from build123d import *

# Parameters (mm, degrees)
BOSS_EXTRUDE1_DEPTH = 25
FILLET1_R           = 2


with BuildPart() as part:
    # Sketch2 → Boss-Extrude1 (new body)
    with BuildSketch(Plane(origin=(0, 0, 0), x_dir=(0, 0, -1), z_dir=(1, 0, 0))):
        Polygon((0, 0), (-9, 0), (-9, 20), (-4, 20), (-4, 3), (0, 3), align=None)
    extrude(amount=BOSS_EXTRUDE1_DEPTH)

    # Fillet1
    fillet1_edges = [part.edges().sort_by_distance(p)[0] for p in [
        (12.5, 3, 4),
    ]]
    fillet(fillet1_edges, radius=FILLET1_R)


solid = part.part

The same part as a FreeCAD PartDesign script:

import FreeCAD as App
import Part
import Sketcher


def edges_at(feature, points):
    """Names of the edges that pass closest to the given points."""
    edges = feature.Shape.Edges
    near = lambda p: min(range(len(edges)), key=lambda i: edges[i].distToShape(Part.Vertex(*p))[0])
    return sorted({f"Edge{near(p) + 1}" for p in points})

doc = App.newDocument("Part")
body = doc.addObject("PartDesign::Body", "Body")

# Sketch on YZ plane
sketch1 = doc.addObject("Sketcher::SketchObject", "Sketch")
body.addObject(sketch1)
sketch1.AttachmentSupport = (doc.YZ_Plane, [""])
sketch1.MapMode = "FlatFace"
sketch1.addGeometry([
    Part.LineSegment(App.Vector(0, 9, 0), App.Vector(0, 0, 0)),  # 0
    Part.LineSegment(App.Vector(0, 0, 0), App.Vector(3, 0, 0)),  # 1
    Part.LineSegment(App.Vector(3, 0, 0), App.Vector(3, 4, 0)),  # 2
    Part.LineSegment(App.Vector(3, 4, 0), App.Vector(20, 4, 0)),  # 3
    Part.LineSegment(App.Vector(20, 4, 0), App.Vector(20, 9, 0)),  # 4
    Part.LineSegment(App.Vector(20, 9, 0), App.Vector(0, 9, 0)),  # 5
], False)
sketch1.addConstraint([
    Sketcher.Constraint("Coincident", 0, 2, 1, 1),
    Sketcher.Constraint("Coincident", 1, 2, 2, 1),
    Sketcher.Constraint("Coincident", 2, 2, 3, 1),
    Sketcher.Constraint("Coincident", 3, 2, 4, 1),
    Sketcher.Constraint("Coincident", 4, 2, 5, 1),
    Sketcher.Constraint("Coincident", 5, 2, 0, 1),
    Sketcher.Constraint("Vertical", 0),
    Sketcher.Constraint("Horizontal", 1),
    Sketcher.Constraint("Vertical", 2),
    Sketcher.Constraint("Horizontal", 3),
    Sketcher.Constraint("Vertical", 4),
    Sketcher.Constraint("Horizontal", 5),
    Sketcher.Constraint("Coincident", 0, 2, -1, 1),
    Sketcher.Constraint("DistanceX", 1, 1, 1, 2, 3.0),
    Sketcher.Constraint("DistanceX", 3, 1, 3, 2, 17.0),
    Sketcher.Constraint("DistanceY", 0, 2, 0, 1, 9.0),
    Sketcher.Constraint("DistanceY", 2, 1, 2, 2, 4.0),
])
pad1 = doc.addObject("PartDesign::Pad", "Pad")
body.addObject(pad1)
pad1.Profile = sketch1
pad1.Length = 25
doc.recompute()

fillet = doc.addObject("PartDesign::Fillet", "Fillet")
body.addObject(fillet)
fillet.Base = (pad1, edges_at(pad1, [(12.5, 3, 4)]))
fillet.Radius = 2

doc.recompute()
